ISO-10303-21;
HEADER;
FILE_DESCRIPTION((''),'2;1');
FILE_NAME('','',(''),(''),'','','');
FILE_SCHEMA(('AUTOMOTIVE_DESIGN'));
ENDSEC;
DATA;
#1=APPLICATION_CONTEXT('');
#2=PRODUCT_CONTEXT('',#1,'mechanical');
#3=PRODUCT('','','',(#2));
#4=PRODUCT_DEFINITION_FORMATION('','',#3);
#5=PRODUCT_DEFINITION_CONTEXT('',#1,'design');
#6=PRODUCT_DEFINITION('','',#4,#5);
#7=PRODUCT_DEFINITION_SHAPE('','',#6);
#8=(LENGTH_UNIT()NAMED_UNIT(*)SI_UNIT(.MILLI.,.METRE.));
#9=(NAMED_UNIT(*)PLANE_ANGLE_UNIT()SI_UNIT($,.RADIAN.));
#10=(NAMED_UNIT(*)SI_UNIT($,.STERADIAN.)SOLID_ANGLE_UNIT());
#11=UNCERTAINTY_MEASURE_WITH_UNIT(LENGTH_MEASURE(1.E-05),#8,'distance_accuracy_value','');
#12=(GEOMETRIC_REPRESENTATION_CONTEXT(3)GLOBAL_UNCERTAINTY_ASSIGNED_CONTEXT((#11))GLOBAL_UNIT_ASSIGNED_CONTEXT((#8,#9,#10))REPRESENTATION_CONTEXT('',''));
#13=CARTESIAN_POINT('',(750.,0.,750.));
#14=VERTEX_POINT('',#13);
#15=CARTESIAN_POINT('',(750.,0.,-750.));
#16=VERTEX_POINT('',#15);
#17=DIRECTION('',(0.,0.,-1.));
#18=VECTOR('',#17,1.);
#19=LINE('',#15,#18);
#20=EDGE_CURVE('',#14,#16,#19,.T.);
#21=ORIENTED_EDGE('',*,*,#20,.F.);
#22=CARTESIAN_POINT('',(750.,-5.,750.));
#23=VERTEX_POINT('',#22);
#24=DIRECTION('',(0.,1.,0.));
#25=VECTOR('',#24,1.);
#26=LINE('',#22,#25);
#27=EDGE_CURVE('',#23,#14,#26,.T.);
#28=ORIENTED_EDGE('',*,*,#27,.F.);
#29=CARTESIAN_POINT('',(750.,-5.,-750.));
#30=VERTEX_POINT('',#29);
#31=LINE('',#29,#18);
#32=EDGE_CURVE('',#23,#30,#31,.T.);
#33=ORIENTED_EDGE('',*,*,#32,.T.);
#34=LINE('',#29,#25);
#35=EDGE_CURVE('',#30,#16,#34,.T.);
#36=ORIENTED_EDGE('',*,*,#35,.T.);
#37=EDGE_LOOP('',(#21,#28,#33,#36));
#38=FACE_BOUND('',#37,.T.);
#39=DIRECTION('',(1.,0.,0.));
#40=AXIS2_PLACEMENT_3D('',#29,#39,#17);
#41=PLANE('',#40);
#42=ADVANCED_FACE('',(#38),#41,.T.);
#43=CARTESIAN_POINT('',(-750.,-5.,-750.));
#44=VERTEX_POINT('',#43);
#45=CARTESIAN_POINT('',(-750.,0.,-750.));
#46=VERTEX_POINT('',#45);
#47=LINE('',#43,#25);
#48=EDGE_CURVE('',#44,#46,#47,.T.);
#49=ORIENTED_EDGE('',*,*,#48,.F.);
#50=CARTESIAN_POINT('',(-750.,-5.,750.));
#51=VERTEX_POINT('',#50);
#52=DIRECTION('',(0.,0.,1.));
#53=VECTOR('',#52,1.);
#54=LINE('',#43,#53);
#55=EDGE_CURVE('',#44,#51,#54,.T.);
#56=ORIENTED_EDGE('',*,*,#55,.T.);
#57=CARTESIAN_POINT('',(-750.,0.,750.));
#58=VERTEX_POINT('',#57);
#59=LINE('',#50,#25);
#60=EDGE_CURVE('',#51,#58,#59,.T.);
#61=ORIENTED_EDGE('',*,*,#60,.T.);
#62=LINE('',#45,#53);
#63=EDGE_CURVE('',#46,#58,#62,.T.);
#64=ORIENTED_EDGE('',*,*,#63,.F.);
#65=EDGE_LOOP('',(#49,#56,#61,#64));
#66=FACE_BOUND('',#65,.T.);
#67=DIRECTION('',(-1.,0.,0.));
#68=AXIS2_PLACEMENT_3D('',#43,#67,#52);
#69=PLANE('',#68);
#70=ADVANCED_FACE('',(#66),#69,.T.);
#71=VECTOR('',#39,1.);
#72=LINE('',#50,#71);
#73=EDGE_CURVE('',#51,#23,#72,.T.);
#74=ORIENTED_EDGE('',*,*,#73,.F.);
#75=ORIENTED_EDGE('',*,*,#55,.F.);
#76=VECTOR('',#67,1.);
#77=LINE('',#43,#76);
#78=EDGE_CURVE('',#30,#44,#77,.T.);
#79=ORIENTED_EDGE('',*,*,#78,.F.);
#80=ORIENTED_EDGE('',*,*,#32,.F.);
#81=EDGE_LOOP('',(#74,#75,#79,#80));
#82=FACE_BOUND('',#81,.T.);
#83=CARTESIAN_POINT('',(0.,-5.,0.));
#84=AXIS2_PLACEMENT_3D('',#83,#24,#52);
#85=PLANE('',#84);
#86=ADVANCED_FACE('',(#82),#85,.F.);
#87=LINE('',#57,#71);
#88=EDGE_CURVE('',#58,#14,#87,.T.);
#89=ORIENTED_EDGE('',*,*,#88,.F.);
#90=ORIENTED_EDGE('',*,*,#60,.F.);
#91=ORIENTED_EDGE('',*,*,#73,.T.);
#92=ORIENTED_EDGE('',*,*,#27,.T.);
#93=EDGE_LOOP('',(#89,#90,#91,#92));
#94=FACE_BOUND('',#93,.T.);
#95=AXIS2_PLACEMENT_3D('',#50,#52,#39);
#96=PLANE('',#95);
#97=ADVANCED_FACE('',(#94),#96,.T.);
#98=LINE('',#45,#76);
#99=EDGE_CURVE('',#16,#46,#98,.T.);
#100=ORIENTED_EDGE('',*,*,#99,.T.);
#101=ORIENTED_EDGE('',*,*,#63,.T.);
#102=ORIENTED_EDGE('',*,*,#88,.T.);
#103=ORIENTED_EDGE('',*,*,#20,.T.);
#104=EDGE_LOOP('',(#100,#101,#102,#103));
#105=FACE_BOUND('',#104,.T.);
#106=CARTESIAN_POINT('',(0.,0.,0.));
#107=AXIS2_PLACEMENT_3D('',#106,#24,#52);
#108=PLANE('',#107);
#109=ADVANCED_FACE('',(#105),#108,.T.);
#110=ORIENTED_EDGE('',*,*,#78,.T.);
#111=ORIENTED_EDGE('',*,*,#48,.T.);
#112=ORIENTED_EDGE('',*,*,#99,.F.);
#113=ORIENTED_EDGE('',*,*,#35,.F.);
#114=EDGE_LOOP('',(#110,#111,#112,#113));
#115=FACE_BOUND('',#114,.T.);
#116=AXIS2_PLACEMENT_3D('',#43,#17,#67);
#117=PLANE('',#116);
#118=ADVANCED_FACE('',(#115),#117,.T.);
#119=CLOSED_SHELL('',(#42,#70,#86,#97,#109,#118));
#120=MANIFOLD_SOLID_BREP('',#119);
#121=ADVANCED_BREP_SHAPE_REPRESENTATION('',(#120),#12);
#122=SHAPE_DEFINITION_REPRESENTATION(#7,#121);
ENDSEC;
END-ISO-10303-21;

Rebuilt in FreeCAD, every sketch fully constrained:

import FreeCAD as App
import Part
import Sketcher
from FreeCAD import Vector

doc = App.newDocument("Part")
params = doc.addObject("Spreadsheet::Sheet", "Params")
for row, (alias, value) in enumerate([
    ("sketch1_width", "1500 mm"),
    ("pad1_length", "5 mm"),
], start=1):
    params.set(f"A{row}", alias)
    params.set(f"B{row}", "=" + value)
    params.setAlias(f"B{row}", alias)

body = doc.addObject("PartDesign::Body", "Body")

# Sketch on XZ plane
sketch1 = body.newObject("Sketcher::SketchObject", "Sketch")
sketch1.AttachmentSupport = (doc.getObject("XZ_Plane"), [""])
sketch1.MapMode = "FlatFace"
sketch1.addGeometry([
    Part.LineSegment(Vector(-750, -750, 0), Vector(-750, 750, 0)),
    Part.LineSegment(Vector(-750, 750, 0), Vector(750, 750, 0)),
    Part.LineSegment(Vector(750, 750, 0), Vector(750, -750, 0)),
    Part.LineSegment(Vector(750, -750, 0), Vector(-750, -750, 0)),
], False)
sketch1.addConstraint([
    Sketcher.Constraint("Coincident", 0, 2, 1, 1),
    Sketcher.Constraint("Coincident", 1, 2, 2, 1),
    Sketcher.Constraint("Coincident", 2, 2, 3, 1),
    Sketcher.Constraint("Coincident", 3, 2, 0, 1),
    Sketcher.Constraint("Vertical", 0),
    Sketcher.Constraint("Horizontal", 1),
    Sketcher.Constraint("Vertical", 2),
    Sketcher.Constraint("Horizontal", 3),
    Sketcher.Constraint("Symmetric", 0, 2, 2, 2, -1, 1),
    Sketcher.Constraint("Equal", 3, 0),
    Sketcher.Constraint("DistanceX", 1, 1, 1, 2, 1500.0),
])
sketch1.setExpression("Constraints[10]", "Params.sketch1_width")
pad1 = body.newObject("PartDesign::Pad", "Pad")
pad1.Profile = sketch1
pad1.setExpression("Length", "Params.pad1_length")

doc.recompute()
